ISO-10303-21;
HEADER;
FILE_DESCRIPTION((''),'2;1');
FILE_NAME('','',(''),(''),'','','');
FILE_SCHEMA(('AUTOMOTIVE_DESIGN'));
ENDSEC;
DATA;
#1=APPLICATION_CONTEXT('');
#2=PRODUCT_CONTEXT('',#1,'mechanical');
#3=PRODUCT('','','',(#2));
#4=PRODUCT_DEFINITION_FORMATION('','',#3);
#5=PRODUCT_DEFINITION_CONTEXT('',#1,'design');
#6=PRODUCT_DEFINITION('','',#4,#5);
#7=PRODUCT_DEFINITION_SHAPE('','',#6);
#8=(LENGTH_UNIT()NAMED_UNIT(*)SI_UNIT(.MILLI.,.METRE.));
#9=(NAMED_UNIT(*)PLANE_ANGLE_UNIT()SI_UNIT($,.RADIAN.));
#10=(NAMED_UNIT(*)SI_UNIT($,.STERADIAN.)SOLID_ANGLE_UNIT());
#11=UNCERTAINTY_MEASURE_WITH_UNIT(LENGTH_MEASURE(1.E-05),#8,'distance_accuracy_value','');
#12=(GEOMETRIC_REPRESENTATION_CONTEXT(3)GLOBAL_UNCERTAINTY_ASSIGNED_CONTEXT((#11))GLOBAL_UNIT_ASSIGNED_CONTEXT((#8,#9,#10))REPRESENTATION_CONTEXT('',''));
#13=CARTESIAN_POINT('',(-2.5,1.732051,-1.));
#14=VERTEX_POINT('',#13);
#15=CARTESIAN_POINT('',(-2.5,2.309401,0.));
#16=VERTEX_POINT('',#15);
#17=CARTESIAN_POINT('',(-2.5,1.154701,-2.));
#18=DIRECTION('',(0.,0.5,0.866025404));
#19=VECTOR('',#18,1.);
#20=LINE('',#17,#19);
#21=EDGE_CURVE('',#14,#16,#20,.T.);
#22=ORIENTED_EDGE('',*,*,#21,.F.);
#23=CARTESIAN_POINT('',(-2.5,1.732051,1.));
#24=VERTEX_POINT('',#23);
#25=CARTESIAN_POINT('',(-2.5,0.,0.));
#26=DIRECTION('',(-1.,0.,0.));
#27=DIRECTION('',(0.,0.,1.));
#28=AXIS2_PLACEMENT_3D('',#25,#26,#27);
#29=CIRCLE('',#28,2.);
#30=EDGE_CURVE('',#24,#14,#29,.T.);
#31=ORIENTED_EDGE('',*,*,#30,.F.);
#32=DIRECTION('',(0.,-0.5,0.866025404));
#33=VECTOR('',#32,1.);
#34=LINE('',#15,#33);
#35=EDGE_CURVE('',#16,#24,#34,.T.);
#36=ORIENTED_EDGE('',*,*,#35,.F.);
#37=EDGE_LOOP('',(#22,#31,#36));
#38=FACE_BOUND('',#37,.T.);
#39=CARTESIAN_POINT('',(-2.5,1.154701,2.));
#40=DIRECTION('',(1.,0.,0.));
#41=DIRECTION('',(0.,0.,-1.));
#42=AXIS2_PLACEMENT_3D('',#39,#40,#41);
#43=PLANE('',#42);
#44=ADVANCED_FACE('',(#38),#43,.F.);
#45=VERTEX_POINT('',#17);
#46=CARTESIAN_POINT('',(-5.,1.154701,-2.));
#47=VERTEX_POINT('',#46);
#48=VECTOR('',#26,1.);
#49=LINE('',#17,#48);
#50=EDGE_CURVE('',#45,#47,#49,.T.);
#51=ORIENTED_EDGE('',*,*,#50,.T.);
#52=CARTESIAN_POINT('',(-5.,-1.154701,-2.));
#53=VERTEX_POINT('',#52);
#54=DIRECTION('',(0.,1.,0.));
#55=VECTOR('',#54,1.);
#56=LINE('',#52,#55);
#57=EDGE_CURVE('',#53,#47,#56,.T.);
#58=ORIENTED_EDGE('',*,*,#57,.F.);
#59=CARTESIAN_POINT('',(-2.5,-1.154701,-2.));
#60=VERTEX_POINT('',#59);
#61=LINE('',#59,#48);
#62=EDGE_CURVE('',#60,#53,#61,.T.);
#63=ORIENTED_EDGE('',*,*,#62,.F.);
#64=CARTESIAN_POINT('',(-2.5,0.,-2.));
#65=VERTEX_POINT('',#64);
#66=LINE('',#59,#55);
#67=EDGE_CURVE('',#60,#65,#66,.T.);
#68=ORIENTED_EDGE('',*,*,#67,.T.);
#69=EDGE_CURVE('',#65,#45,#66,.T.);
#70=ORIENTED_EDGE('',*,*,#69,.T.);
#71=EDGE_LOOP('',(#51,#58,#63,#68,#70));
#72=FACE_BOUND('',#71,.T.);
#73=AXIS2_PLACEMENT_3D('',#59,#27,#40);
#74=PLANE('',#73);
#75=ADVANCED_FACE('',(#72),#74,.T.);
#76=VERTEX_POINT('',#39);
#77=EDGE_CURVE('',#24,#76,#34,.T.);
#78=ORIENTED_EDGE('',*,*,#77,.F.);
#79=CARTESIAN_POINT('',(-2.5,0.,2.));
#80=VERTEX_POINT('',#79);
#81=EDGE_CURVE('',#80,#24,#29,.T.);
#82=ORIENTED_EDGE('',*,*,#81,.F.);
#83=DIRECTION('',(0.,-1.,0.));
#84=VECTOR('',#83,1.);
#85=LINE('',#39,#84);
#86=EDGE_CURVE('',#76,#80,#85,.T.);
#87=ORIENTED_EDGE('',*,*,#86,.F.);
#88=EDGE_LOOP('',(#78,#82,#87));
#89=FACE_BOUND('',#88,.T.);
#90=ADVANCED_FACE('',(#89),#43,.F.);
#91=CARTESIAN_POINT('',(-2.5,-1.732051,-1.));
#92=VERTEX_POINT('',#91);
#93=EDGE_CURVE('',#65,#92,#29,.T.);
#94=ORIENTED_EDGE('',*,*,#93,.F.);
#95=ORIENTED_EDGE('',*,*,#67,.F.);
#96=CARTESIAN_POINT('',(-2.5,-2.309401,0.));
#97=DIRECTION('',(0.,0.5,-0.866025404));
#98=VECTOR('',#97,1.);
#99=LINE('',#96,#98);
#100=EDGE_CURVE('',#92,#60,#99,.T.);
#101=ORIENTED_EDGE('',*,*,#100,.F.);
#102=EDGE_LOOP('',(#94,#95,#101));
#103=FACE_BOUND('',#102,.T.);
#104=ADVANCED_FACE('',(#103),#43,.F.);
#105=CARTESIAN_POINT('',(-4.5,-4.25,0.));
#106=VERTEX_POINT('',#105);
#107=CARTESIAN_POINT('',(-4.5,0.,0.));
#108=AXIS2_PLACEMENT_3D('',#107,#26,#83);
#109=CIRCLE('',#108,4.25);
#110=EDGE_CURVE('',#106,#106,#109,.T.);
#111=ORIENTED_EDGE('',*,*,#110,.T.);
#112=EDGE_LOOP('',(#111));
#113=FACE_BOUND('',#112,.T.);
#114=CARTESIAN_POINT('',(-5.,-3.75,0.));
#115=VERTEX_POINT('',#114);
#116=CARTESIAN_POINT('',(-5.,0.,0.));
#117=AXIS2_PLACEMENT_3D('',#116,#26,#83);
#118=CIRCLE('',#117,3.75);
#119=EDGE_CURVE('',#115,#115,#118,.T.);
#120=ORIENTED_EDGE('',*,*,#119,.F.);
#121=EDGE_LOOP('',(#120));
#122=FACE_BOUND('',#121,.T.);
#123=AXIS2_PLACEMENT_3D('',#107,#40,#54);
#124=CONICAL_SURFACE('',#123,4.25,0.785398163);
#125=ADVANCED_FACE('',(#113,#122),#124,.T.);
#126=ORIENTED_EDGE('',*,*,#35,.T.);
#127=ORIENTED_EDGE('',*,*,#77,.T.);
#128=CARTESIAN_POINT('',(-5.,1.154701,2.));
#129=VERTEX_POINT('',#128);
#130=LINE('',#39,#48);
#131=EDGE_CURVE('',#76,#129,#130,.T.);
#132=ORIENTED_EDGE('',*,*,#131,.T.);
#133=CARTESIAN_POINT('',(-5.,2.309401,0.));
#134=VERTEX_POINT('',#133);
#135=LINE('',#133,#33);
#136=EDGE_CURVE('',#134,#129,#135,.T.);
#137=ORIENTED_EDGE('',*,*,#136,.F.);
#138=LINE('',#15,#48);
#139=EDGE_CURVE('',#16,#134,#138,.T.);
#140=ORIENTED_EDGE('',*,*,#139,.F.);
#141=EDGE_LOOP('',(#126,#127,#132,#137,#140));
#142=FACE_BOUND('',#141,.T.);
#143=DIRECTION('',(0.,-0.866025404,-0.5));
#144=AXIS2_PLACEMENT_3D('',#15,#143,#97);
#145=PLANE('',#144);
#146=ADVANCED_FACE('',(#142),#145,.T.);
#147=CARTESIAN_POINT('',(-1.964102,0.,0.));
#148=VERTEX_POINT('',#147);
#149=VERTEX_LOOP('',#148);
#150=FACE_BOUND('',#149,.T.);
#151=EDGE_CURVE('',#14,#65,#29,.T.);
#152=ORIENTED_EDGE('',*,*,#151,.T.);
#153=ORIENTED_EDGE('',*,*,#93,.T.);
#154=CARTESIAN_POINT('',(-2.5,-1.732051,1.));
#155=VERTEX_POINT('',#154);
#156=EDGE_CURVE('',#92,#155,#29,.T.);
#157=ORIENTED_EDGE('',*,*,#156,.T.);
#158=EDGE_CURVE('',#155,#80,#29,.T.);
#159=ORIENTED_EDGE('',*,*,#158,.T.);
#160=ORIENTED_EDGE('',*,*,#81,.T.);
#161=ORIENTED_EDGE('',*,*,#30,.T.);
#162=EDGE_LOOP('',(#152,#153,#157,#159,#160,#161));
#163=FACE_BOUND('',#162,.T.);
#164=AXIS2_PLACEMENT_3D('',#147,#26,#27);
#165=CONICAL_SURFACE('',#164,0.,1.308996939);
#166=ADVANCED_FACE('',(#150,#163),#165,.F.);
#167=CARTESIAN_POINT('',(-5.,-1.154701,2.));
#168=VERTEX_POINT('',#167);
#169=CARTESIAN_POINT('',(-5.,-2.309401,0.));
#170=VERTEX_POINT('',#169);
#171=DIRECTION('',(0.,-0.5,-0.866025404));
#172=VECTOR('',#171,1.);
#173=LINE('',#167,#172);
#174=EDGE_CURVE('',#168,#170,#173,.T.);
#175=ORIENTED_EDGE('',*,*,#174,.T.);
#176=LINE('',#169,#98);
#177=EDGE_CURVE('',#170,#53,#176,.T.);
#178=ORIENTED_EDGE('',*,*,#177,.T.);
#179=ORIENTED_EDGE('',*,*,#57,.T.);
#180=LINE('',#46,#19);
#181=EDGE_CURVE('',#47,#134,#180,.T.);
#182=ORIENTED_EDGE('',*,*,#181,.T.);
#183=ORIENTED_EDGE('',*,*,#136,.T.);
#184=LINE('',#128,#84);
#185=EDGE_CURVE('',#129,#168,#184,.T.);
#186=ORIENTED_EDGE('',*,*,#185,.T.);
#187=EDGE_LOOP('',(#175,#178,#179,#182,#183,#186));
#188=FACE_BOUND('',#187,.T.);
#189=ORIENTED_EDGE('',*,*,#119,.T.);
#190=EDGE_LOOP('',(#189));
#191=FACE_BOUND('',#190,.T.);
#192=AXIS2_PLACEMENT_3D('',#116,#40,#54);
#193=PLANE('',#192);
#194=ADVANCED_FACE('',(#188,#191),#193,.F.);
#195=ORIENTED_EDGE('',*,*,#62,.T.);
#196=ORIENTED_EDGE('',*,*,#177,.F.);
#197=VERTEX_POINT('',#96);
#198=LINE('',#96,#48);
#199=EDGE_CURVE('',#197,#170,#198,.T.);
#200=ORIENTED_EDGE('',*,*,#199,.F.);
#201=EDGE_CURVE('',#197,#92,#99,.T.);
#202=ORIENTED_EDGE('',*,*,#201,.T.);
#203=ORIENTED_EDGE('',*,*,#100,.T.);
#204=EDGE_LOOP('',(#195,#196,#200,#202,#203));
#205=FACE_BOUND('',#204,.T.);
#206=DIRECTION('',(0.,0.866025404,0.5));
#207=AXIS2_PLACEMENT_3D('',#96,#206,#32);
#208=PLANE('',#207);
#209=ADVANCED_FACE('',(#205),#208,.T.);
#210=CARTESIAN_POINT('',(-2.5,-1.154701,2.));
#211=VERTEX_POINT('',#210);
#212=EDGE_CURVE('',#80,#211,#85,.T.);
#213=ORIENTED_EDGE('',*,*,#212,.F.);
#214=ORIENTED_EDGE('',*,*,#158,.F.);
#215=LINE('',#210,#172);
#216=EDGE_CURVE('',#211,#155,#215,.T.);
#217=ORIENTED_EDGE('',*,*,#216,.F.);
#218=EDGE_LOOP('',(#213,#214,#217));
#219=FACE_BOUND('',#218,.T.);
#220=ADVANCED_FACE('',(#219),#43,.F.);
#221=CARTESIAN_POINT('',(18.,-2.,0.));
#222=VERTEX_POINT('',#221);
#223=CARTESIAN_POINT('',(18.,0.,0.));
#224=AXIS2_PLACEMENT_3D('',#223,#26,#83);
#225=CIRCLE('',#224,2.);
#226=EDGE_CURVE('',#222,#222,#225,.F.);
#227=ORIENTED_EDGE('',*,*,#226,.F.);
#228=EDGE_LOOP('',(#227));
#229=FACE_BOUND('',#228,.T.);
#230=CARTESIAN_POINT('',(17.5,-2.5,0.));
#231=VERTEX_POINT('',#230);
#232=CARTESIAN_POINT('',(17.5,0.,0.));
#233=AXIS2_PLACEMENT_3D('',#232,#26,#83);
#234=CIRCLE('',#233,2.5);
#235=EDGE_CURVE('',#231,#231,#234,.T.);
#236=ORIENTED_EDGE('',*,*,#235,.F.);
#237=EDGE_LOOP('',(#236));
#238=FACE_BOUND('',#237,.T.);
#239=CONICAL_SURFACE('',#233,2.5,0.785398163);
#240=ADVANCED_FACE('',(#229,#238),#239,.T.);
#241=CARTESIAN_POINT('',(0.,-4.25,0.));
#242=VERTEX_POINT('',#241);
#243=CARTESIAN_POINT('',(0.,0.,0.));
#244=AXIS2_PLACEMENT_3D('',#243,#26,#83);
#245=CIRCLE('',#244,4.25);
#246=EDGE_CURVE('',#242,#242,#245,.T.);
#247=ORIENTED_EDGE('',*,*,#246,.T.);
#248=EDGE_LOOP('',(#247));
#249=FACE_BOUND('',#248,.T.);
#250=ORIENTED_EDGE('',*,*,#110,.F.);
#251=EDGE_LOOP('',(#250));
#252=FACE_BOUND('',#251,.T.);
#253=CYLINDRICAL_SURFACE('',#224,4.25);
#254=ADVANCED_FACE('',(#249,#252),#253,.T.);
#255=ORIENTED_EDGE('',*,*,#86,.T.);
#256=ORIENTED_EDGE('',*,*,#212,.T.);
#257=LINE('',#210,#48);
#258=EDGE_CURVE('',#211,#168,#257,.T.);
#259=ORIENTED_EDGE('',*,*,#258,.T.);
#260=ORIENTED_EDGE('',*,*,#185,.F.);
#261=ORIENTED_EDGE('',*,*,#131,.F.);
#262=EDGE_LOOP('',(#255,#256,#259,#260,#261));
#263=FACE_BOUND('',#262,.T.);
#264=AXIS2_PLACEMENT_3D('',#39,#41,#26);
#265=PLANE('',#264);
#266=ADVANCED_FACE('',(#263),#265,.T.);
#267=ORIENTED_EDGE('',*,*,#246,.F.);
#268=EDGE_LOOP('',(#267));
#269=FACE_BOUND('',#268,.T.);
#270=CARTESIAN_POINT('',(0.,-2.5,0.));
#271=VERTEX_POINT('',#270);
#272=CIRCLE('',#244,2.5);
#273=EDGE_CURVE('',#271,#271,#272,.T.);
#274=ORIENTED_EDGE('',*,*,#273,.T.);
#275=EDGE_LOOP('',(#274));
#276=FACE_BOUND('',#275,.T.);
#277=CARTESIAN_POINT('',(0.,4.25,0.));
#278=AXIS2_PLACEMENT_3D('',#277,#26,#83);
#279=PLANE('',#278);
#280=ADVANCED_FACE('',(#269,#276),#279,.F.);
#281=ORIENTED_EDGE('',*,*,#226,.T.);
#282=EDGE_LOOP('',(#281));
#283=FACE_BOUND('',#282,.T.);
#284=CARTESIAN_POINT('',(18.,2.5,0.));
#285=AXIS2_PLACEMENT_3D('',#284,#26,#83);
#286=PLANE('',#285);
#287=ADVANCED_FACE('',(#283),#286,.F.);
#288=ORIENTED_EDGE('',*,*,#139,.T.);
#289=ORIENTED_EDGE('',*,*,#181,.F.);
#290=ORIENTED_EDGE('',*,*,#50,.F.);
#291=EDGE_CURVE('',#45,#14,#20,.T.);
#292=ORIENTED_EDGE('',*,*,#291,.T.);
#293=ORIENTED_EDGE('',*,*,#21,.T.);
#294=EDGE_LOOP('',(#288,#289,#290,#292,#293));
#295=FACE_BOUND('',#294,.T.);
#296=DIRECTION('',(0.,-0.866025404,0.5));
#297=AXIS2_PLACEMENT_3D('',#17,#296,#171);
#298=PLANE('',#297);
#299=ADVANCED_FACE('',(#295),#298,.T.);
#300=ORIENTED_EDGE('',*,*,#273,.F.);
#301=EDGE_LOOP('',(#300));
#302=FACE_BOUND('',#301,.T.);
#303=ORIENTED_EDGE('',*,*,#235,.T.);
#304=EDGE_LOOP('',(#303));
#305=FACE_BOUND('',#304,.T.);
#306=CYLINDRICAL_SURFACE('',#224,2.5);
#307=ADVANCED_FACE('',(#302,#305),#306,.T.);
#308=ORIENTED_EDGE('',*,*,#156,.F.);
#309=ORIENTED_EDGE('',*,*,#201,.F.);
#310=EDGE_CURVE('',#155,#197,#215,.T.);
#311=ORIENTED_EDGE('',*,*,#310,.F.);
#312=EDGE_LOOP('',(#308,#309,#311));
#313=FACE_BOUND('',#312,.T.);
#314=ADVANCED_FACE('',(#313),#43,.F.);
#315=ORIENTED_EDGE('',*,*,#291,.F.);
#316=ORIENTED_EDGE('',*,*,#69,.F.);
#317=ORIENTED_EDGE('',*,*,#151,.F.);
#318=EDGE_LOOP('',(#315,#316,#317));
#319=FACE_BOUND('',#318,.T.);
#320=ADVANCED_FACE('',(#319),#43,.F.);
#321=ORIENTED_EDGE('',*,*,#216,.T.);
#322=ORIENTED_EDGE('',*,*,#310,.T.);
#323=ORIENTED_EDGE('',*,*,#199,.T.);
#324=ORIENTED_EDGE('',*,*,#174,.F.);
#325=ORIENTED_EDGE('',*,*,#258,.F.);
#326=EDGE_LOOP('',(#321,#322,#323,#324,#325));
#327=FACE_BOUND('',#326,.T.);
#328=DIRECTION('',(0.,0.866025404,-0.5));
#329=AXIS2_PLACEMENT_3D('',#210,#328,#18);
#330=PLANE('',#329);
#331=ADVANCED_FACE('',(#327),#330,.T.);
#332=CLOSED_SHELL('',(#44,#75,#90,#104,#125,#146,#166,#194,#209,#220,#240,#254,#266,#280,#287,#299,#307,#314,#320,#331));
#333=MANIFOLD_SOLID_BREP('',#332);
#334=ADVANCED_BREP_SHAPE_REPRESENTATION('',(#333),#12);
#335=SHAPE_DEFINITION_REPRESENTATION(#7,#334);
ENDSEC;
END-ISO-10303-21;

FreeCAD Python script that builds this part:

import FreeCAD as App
import Part
import Sketcher
from FreeCAD import Vector
Q = App.Units.Quantity


def edges_at(feature, points):
    """Names of the edges that pass closest to the given points."""
    edges = feature.Shape.Edges
    near = lambda p: min(range(len(edges)), key=lambda i: edges[i].distToShape(Part.Vertex(*p))[0])
    return sorted({f"Edge{near(p) + 1}" for p in points})


def add_polygon(sketch, points):
    """Adds a closed chain of lines whose ends are joined by coincident constraints."""
    first, n = sketch.GeometryCount, len(points)
    for a, b in zip(points, points[1:] + points[:1]):
        sketch.addGeometry(Part.LineSegment(App.Vector(*a, 0), App.Vector(*b, 0)), False)
    for i in range(n):
        sketch.addConstraint(Sketcher.Constraint("Coincident", first + i, 2, first + (i + 1) % n, 1))

doc = App.newDocument("Part")
body = doc.addObject("PartDesign::Body", "Body")

# Sketch on XY plane
sketch1 = doc.addObject("Sketcher::SketchObject", "Sketch")
body.addObject(sketch1)
sketch1.AttachmentSupport = (doc.XY_Plane, [""])
sketch1.MapMode = "FlatFace"
add_polygon(sketch1, [(-5, 3.8), (-5, 0), (18, 0), (18, 2.5), (0, 2.5), (0, 4.2), (-4.5, 4.2)])  # lines 0-6
sketch1.addConstraint(Sketcher.Constraint("Vertical", 0))
sketch1.addConstraint(Sketcher.Constraint("Horizontal", 1))
sketch1.addConstraint(Sketcher.Constraint("Vertical", 2))
sketch1.addConstraint(Sketcher.Constraint("Horizontal", 3))
sketch1.addConstraint(Sketcher.Constraint("Vertical", 4))
sketch1.addConstraint(Sketcher.Constraint("Horizontal", 5))
sketch1.addConstraint(Sketcher.Constraint("PointOnObject", 0, 2, -1))
sketch1.addConstraint(Sketcher.Constraint("PointOnObject", 3, 2, -2))
sketch1.addConstraint(Sketcher.Constraint("DistanceX", 1, 1, 1, 2, Q("23 mm")))
sketch1.addConstraint(Sketcher.Constraint("DistanceX", 3, 2, 3, 1, Q("18 mm")))
sketch1.addConstraint(Sketcher.Constraint("Angle", 6, Q("-135 deg")))
sketch1.addConstraint(Sketcher.Constraint("DistanceX", 5, 2, 5, 1, Q("4.5 mm")))
sketch1.addConstraint(Sketcher.Constraint("DistanceY", 2, 1, 2, 2, Q("2.5 mm")))
sketch1.addConstraint(Sketcher.Constraint("DistanceY", 0, 2, 0, 1, Q("3.75 mm")))
revolution = doc.addObject("PartDesign::Revolution", "Revolution")
body.addObject(revolution)
revolution.Profile = sketch1
revolution.ReferenceAxis = (sketch1, ["H_Axis"])
revolution.Angle = 360
doc.recompute()

chamfer = doc.addObject("PartDesign::Chamfer", "Chamfer")
body.addObject(chamfer)
chamfer.Base = (revolution, edges_at(revolution, [(18, 2.5, 0)]))
chamfer.Size = 0.5

# Sketch on XY plane
sketch2 = doc.addObject("Sketcher::SketchObject", "Sketch001")
body.addObject(sketch2)
sketch2.AttachmentSupport = (doc.XY_Plane, [""])
sketch2.MapMode = "FlatFace"
add_polygon(sketch2, [(-5, 2), (-5, 0), (-2, 0), (-2.5, 2)])  # lines 0-3
sketch2.addConstraint(Sketcher.Constraint("Vertical", 0))
sketch2.addConstraint(Sketcher.Constraint("Horizontal", 1))
sketch2.addConstraint(Sketcher.Constraint("Horizontal", 3))
sketch2.addConstraint(Sketcher.Constraint("PointOnObject", 0, 2, -1))
sketch2.addConstraint(Sketcher.Constraint("DistanceY", 0, 2, 0, 1, Q("2 mm")))
sketch2.addConstraint(Sketcher.Constraint("Angle", 2, Q("105 deg")))
sketch2.addConstraint(Sketcher.Constraint("DistanceX", 3, 2, 3, 1, Q("2.5 mm")))
sketch2.addConstraint(Sketcher.Constraint("DistanceX", 0, 2, -1, 1, Q("5 mm")))
groove = doc.addObject("PartDesign::Groove", "Groove")
body.addObject(groove)
groove.Profile = sketch2
groove.ReferenceAxis = (sketch2, ["H_Axis"])
groove.Angle = 360

# Sketch on YZ plane
sketch3 = doc.addObject("Sketcher::SketchObject", "Sketch002")
body.addObject(sketch3)
sketch3.AttachmentSupport = (doc.YZ_Plane, [""])
sketch3.MapMode = "FlatFace"
sketch3.AttachmentOffset = App.Placement(Vector(0, 0, -5), App.Rotation())
add_polygon(sketch3, [(1.2, 2), (-1.2, 2), (-2.3, 0), (-1.2, -2), (1.2, -2), (2.3, 0)])  # lines 0-5
sketch3.addConstraint(Sketcher.Constraint("Horizontal", 0))
sketch3.addConstraint(Sketcher.Constraint("Horizontal", 3))
sketch3.addConstraint(Sketcher.Constraint("Symmetric", 0, 2, 3, 2, -1, 1))
sketch3.addConstraint(Sketcher.Constraint("Symmetric", 1, 2, 4, 2, -1, 1))
sketch3.addConstraint(Sketcher.Constraint("PointOnObject", 1, 2, -1))
sketch3.addConstraint(Sketcher.Constraint("Parallel", 2, 5))
sketch3.addConstraint(Sketcher.Constraint("Vertical", 0, 2, 2, 2))
sketch3.addConstraint(Sketcher.Constraint("Angle", 1, Q("-120 deg")))
sketch3.addConstraint(Sketcher.Constraint("DistanceY", -1, 1, 0, 2, Q("2 mm")))
sketch3.addConstraint(Sketcher.Constraint("DistanceX", 0, 2, 0, 1, Q("2.309401 mm")))
pocket1 = doc.addObject("PartDesign::Pocket", "Pocket")
body.addObject(pocket1)
pocket1.Profile = sketch3
pocket1.Length = 2.5
pocket1.Reversed = True

doc.recompute()
